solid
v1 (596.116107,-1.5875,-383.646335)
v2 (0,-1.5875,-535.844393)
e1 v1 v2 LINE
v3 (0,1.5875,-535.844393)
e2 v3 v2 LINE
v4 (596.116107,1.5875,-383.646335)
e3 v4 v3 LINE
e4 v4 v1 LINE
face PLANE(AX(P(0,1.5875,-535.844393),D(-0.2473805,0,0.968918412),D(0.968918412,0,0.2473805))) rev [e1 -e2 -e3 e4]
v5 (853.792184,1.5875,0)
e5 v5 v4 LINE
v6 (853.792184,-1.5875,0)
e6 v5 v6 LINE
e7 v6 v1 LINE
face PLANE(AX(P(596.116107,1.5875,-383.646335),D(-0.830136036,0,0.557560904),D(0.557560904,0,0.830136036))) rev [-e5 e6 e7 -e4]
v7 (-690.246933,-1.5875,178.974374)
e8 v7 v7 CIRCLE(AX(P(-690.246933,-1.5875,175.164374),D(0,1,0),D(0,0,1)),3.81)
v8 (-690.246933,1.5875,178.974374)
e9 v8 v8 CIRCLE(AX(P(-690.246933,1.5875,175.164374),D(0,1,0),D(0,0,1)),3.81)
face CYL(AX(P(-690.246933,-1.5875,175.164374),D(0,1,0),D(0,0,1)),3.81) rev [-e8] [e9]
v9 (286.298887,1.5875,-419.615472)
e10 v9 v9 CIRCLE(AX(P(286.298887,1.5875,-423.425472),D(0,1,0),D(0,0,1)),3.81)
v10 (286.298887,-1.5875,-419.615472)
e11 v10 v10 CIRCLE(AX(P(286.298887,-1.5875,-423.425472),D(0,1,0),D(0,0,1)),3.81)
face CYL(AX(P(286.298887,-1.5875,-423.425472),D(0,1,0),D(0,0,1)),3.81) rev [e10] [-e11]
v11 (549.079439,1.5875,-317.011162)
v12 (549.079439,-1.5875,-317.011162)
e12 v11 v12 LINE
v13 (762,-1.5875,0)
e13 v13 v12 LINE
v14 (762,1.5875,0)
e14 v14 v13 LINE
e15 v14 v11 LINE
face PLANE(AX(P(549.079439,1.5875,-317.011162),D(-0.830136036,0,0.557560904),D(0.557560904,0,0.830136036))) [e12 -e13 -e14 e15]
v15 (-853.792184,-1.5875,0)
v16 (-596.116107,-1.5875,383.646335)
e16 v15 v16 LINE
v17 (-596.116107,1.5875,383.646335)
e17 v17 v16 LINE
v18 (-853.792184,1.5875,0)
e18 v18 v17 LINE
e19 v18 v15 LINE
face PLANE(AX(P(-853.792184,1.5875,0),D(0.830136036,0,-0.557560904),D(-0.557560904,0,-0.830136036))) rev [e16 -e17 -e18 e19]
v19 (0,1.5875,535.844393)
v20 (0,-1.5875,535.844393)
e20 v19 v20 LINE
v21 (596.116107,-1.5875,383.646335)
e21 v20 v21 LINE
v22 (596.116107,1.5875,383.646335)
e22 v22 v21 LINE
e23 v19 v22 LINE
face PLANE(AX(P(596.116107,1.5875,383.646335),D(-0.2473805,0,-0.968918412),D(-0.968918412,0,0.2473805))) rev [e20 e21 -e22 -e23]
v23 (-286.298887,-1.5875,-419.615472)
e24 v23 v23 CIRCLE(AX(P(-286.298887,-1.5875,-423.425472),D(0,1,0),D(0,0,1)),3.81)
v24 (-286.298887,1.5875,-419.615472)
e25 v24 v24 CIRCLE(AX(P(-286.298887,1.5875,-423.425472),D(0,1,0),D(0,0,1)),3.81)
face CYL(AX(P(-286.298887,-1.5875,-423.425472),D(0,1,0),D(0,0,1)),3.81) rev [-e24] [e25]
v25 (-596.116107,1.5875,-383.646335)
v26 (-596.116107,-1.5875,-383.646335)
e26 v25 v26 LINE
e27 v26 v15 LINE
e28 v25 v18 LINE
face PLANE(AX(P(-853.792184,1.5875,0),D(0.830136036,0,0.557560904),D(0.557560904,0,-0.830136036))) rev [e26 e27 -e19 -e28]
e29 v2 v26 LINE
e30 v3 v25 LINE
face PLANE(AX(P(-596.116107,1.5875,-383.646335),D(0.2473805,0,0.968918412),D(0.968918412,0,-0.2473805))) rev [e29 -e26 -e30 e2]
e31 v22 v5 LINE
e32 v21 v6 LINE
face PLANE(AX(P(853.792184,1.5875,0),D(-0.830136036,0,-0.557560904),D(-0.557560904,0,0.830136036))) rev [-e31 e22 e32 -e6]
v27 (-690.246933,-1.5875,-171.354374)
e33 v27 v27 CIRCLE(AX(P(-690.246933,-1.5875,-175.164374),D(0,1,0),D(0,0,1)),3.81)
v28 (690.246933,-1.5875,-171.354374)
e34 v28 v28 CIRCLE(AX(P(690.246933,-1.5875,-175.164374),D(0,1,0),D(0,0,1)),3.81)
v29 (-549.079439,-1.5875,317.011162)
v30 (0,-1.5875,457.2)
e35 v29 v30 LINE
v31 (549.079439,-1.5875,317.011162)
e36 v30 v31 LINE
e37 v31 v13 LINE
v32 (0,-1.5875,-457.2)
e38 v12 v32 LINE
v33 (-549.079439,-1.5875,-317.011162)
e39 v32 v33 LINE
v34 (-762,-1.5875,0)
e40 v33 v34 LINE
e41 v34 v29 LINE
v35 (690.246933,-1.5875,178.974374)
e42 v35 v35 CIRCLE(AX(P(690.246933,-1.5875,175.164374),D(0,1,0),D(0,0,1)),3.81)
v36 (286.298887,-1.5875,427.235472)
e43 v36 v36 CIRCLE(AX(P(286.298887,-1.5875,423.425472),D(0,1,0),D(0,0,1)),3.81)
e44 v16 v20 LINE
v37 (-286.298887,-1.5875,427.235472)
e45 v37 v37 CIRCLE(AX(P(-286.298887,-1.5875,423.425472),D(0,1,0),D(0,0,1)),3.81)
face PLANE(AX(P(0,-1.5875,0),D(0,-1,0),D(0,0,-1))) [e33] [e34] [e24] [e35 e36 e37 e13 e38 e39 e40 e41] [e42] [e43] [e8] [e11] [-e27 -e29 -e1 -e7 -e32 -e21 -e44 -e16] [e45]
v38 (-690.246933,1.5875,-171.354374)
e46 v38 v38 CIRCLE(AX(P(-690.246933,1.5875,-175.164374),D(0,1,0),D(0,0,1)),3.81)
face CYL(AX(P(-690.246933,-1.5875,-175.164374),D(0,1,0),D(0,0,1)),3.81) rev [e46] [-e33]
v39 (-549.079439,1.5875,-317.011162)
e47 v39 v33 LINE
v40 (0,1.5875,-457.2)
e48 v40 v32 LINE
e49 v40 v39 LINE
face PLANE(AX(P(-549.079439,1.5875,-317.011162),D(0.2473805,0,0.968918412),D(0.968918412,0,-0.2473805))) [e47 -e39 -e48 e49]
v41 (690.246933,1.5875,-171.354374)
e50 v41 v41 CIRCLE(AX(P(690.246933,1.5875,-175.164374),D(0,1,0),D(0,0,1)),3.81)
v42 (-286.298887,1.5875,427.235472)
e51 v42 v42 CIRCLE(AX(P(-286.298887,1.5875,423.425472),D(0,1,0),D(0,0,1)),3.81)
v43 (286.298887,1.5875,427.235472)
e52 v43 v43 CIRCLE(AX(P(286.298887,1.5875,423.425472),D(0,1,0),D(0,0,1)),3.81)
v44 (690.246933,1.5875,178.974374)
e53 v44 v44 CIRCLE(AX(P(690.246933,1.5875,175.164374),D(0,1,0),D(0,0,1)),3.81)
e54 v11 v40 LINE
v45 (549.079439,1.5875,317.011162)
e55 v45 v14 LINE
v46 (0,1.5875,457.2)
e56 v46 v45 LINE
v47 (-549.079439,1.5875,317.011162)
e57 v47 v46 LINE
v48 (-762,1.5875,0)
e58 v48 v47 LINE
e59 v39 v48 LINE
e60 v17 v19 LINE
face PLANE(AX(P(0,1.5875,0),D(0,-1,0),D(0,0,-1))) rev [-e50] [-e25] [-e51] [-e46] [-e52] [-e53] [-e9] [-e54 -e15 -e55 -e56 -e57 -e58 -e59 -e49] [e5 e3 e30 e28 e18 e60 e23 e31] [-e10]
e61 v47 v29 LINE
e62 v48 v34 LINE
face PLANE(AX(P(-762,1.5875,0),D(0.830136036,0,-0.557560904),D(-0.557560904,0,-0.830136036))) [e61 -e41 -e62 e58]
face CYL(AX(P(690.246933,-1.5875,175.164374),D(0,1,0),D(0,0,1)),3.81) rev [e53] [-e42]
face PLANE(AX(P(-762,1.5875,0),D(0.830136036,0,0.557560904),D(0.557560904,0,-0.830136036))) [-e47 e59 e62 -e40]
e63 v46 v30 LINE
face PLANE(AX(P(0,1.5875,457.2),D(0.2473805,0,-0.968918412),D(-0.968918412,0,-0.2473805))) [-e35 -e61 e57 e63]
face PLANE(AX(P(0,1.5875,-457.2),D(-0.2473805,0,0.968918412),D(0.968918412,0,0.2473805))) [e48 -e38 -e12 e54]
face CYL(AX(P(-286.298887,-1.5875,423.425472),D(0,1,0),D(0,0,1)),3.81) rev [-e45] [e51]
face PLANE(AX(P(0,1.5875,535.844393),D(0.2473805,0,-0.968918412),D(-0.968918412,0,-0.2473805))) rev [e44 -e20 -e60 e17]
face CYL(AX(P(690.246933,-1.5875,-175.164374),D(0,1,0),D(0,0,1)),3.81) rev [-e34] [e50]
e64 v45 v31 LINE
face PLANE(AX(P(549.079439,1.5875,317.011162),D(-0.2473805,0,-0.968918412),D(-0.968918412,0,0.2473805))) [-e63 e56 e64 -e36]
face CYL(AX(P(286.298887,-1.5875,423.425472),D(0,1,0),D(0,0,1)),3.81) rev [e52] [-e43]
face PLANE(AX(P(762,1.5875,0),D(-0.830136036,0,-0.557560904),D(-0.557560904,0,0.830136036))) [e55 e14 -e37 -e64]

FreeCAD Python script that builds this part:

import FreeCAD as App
import Part
import Sketcher

V = App.Vector
Q = App.Units.Quantity


def add_polygon(sketch, points):
    """Adds a closed chain of lines whose ends are joined by coincident constraints."""
    first, n = sketch.GeometryCount, len(points)
    for a, b in zip(points, points[1:] + points[:1]):
        sketch.addGeometry(Part.LineSegment(App.Vector(*a, 0), App.Vector(*b, 0)), False)
    for i in range(n):
        sketch.addConstraint(Sketcher.Constraint("Coincident", first + i, 2, first + (i + 1) % n, 1))

doc = App.newDocument("Part")
params = doc.addObject("Spreadsheet::Sheet", "Params")
for row, (alias, value) in enumerate([
    ("pad1_length", "0.125 in"),
    ("sketch2_diameter", "0.3 in"),
], start=1):
    params.set(f"A{row}", alias)
    params.set(f"B{row}", "=" + value)
    params.setAlias(f"B{row}", alias)

body = doc.addObject("PartDesign::Body", "Body")

sketch1 = doc.addObject("Sketcher::SketchObject", "Sketch")
body.addObject(sketch1)
sketch1.AttachmentSupport = (doc.XZ_Plane, [""])
sketch1.MapMode = "FlatFace"
add_polygon(sketch1, [(0, -536), (-596, -384), (-854, 0), (-596, 384), (0, 536), (596, 384), (854, 0), (596, -384)])
add_polygon(sketch1, [(-762, 0), (-549, -317), (0, -457), (549, -317), (762, 0), (549, 317), (0, 457), (-549, 317)])
sketch1.addConstraint([
    Sketcher.Constraint("Symmetric", 0, 2, 4, 2, -1, 1),
    Sketcher.Constraint("Symmetric", 1, 2, 5, 2, -1, 1),
    Sketcher.Constraint("Symmetric", 2, 2, 6, 2, -1, 1),
    Sketcher.Constraint("Symmetric", 3, 2, 7, 2, -1, 1),
    Sketcher.Constraint("Symmetric", 8, 2, 12, 2, -1, 1),
    Sketcher.Constraint("Symmetric", 9, 2, 13, 2, -1, 1),
    Sketcher.Constraint("Symmetric", 10, 2, 14, 2, -1, 1),
    Sketcher.Constraint("Symmetric", 11, 2, 15, 2, -1, 1),
    Sketcher.Constraint("Symmetric", 2, 2, 4, 2, -2),
    Sketcher.Constraint("Symmetric", 8, 2, 10, 2, -2),
    Sketcher.Constraint("PointOnObject", 1, 2, -1),
    Sketcher.Constraint("PointOnObject", 3, 2, -2),
    Sketcher.Constraint("PointOnObject", 9, 2, -2),
    Sketcher.Constraint("PointOnObject", 11, 2, -1),
    Sketcher.Constraint("Parallel", 5, 8),
    Sketcher.Constraint("Parallel", 4, 9),
    Sketcher.Constraint("DistanceY", 9, 2, -1, 1, Q("18 in")),
    Sketcher.Constraint("DistanceX", -1, 1, 11, 2, Q("30 in")),
    Sketcher.Constraint("Distance", 8, Q("381.87857 mm")),
    Sketcher.Constraint("DistanceX", 8, 2, -1, 1, Q("549.079439 mm")),
    Sketcher.Constraint("DistanceY", 0, 2, 2, 2, Q("767.29267 mm")),
    Sketcher.Constraint("DistanceX", 1, 2, 4, 2, Q("1449.908291 mm")),
])
pad1 = doc.addObject("PartDesign::Pad", "Pad")
body.addObject(pad1)
pad1.Profile = sketch1
pad1.setExpression("Length", "Params.pad1_length")
pad1.Midplane = True

sketch2 = doc.addObject("Sketcher::SketchObject", "Sketch001")
body.addObject(sketch2)
sketch2.AttachmentSupport = (doc.XZ_Plane, [""])
sketch2.MapMode = "FlatFace"
sketch2.addGeometry([
    Part.Circle(V(690.2, -175.2, 0), V(0, 0, 1), 3.8),
    Part.Circle(V(690.2, 175.2, 0), V(0, 0, 1), 3.8),
    Part.Circle(V(-690.2, 175.2, 0), V(0, 0, 1), 3.8),
    Part.Circle(V(-690.2, -175.2, 0), V(0, 0, 1), 3.8),
    Part.Circle(V(-286.3, -423.4, 0), V(0, 0, 1), 3.8),
    Part.Circle(V(286.3, -423.4, 0), V(0, 0, 1), 3.8),
    Part.Circle(V(286.3, 423.4, 0), V(0, 0, 1), 3.8),
    Part.Circle(V(-286.3, 423.4, 0), V(0, 0, 1), 3.8),
], False)
sketch2.addConstraint([
    Sketcher.Constraint("Equal", 0, 1),
    Sketcher.Constraint("Equal", 1, 2),
    Sketcher.Constraint("Equal", 2, 3),
    Sketcher.Constraint("Equal", 3, 4),
    Sketcher.Constraint("Equal", 4, 5),
    Sketcher.Constraint("Equal", 5, 6),
    Sketcher.Constraint("Equal", 6, 7),
    Sketcher.Constraint("Symmetric", 0, 3, 2, 3, -1, 1),
    Sketcher.Constraint("Symmetric", 1, 3, 3, 3, -1, 1),
    Sketcher.Constraint("Symmetric", 4, 3, 6, 3, -1, 1),
    Sketcher.Constraint("Symmetric", 5, 3, 7, 3, -1, 1),
    Sketcher.Constraint("Symmetric", 1, 3, 2, 3, -2),
    Sketcher.Constraint("Symmetric", 4, 3, 5, 3, -2),
    Sketcher.Constraint("Diameter", 0, Q("0.3 in")),
    Sketcher.Constraint("DistanceY", 4, 3, 3, 3, Q("248.261098 mm")),
    Sketcher.Constraint("DistanceY", 0, 3, 1, 3, Q("350.328748 mm")),
    Sketcher.Constraint("DistanceX", 4, 3, 0, 3, Q("976.545819 mm")),
    Sketcher.Constraint("DistanceX", -1, 1, 0, 3, Q("690.246933 mm")),
])
sketch2.setExpression("Constraints[13]", "Params.sketch2_diameter")
pocket1 = doc.addObject("PartDesign::Pocket", "Pocket")
body.addObject(pocket1)
pocket1.Profile = sketch2
pocket1.Type = "ThroughAll"
pocket1.Midplane = True

doc.recompute()
